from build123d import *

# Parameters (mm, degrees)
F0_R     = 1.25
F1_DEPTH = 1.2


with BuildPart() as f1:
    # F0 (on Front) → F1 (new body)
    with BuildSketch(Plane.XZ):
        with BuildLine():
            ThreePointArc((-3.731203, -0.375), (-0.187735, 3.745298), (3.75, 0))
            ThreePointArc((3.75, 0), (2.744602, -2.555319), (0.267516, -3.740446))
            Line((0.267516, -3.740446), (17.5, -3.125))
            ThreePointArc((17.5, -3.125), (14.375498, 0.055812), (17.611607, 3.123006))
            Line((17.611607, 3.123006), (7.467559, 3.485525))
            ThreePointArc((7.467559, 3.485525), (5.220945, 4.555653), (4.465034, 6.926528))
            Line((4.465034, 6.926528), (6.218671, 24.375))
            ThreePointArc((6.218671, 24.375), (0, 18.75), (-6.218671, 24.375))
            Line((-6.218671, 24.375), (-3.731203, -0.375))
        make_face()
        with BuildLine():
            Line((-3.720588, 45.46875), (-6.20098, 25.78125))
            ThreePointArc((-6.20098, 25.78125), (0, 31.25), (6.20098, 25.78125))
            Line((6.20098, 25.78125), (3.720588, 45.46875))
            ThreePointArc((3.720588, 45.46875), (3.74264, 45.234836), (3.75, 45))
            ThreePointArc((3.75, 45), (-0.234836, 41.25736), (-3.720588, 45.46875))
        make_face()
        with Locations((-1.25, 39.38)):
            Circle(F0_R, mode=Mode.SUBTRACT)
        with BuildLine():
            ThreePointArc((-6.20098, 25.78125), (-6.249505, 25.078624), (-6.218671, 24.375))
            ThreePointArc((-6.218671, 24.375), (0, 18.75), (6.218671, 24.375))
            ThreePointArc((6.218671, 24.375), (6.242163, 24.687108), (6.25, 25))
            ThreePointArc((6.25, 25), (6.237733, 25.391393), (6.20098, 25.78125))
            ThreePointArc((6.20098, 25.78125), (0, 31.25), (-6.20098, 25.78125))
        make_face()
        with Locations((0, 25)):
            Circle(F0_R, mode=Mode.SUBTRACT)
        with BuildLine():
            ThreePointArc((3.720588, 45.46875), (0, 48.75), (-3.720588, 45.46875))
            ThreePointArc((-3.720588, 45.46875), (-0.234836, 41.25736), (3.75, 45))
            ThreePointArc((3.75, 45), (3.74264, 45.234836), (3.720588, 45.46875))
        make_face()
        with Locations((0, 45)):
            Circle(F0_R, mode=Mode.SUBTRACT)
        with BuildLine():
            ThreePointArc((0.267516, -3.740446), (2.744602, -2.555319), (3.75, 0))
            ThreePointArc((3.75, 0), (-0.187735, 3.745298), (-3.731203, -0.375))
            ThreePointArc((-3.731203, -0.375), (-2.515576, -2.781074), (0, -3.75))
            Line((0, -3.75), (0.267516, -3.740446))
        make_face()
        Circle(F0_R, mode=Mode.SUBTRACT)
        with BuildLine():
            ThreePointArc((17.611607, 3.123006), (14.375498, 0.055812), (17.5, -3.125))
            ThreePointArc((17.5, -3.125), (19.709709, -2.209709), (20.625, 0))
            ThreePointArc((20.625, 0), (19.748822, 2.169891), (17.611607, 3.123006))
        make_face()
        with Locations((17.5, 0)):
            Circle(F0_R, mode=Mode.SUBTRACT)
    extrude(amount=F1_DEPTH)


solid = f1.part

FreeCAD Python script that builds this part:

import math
import FreeCAD as App
import Part
import Sketcher
Q = App.Units.Quantity

doc = App.newDocument("Part")
params = doc.addObject("Spreadsheet::Sheet", "Params")
for row, (alias, value) in enumerate([
    ("sketch1_diameter", "2.5 mm"),
    ("sketch1_diameter2", "2.5 mm"),
    ("sketch1_diameter3", "2.5 mm"),
    ("sketch1_diameter4", "2.5 mm"),
    ("sketch1_diameter5", "2.5 mm"),
    ("pad1_length", "1.2 mm"),
], start=1):
    params.set(f"A{row}", alias)
    params.set(f"B{row}", "=" + value)
    params.setAlias(f"B{row}", alias)

body = doc.addObject("PartDesign::Body", "Body")

sketch1 = body.newObject("Sketcher::SketchObject", "Sketch")
sketch1.AttachmentSupport = (doc.getObject("XZ_Plane"), [""])
sketch1.MapMode = "FlatFace"
sketch1.addGeometry(Part.LineSegment(App.Vector(-6.218671, 24.375, 0), App.Vector(-3.731203, -0.375, 0)), False)
sketch1.addGeometry(Part.ArcOfCircle(Part.Circle(App.Vector(0.000002, 0.000002, 0), App.Vector(0, 0, 1), 3.750002), math.radians(-174.260801), math.radians(-90.000027)), False)
sketch1.addGeometry(Part.LineSegment(App.Vector(0, -3.75, 0), App.Vector(0.267516, -3.740446, 0)), False)
sketch1.addGeometry(Part.LineSegment(App.Vector(0.267516, -3.740446, 0), App.Vector(17.5, -3.125, 0)), False)
sketch1.addGeometry(Part.ArcOfCircle(Part.Circle(App.Vector(17.500001, -0.000001, 0), App.Vector(0, 0, 1), 3.124999), math.radians(-90.000019), math.radians(0.000019)), False)
sketch1.addGeometry(Part.ArcOfCircle(Part.Circle(App.Vector(17.500002, 0.000001, 0), App.Vector(0, 0, 1), 3.124998), math.radians(-0.000022), math.radians(87.953319)), False)
sketch1.addGeometry(Part.LineSegment(App.Vector(17.611607, 3.123006, 0), App.Vector(7.467559, 3.485525, 0)), False)
sketch1.addGeometry(Part.ArcOfCircle(Part.Circle(App.Vector(7.579345, 6.613528, 0), App.Vector(0, 0, 1), 3.13), math.radians(174.260837), math.radians(267.953283)), False)
sketch1.addGeometry(Part.LineSegment(App.Vector(4.465034, 6.926528, 0), App.Vector(6.218671, 24.375, 0)), False)
sketch1.addGeometry(Part.ArcOfCircle(Part.Circle(App.Vector(0.000212, 24.999994, 0), App.Vector(0, 0, 1), 6.249788), math.radians(-5.739312), math.radians(0.000053)), False)
sketch1.addGeometry(Part.ArcOfCircle(Part.Circle(App.Vector(-0.000033, 25.000001, 0), App.Vector(0, 0, 1), 6.250033), math.radians(-0.000008), math.radians(7.18071)), False)
sketch1.addGeometry(Part.LineSegment(App.Vector(6.20098, 25.78125, 0), App.Vector(3.720588, 45.46875, 0)), False)
sketch1.addGeometry(Part.ArcOfCircle(Part.Circle(App.Vector(0, 45, 0), App.Vector(0, 0, 1), 3.75), math.radians(7.180759), math.radians(172.819241)), False)
sketch1.addGeometry(Part.LineSegment(App.Vector(-3.720588, 45.46875, 0), App.Vector(-6.20098, 25.78125, 0)), False)
sketch1.addGeometry(Part.ArcOfCircle(Part.Circle(App.Vector(0.00006, 25.000003, 0), App.Vector(0, 0, 1), 6.25006), math.radians(172.819341), math.radians(185.739143)), False)
sketch1.addGeometry(Part.Circle(App.Vector(0, 0, 0), App.Vector(0, 0, 1), 1.25), False)
sketch1.addGeometry(Part.Circle(App.Vector(17.5, 0, 0), App.Vector(0, 0, 1), 1.25), False)
sketch1.addGeometry(Part.Circle(App.Vector(0, 25, 0), App.Vector(0, 0, 1), 1.25), False)
sketch1.addGeometry(Part.Circle(App.Vector(-1.25, 39.38, 0), App.Vector(0, 0, 1), 1.25), False)
sketch1.addGeometry(Part.Circle(App.Vector(0, 45, 0), App.Vector(0, 0, 1), 1.25), False)
sketch1.addConstraint(Sketcher.Constraint("Coincident", 0, 2, 1, 1))
sketch1.addConstraint(Sketcher.Constraint("Coincident", 1, 2, 2, 1))
sketch1.addConstraint(Sketcher.Constraint("Coincident", 2, 2, 3, 1))
sketch1.addConstraint(Sketcher.Constraint("Coincident", 3, 2, 4, 1))
sketch1.addConstraint(Sketcher.Constraint("Coincident", 4, 2, 5, 1))
sketch1.addConstraint(Sketcher.Constraint("Coincident", 5, 2, 6, 1))
sketch1.addConstraint(Sketcher.Constraint("Coincident", 6, 2, 7, 2))
sketch1.addConstraint(Sketcher.Constraint("Coincident", 7, 1, 8, 1))
sketch1.addConstraint(Sketcher.Constraint("Coincident", 8, 2, 9, 1))
sketch1.addConstraint(Sketcher.Constraint("Coincident", 9, 2, 10, 1))
sketch1.addConstraint(Sketcher.Constraint("Coincident", 10, 2, 11, 1))
sketch1.addConstraint(Sketcher.Constraint("Coincident", 11, 2, 12, 1))
sketch1.addConstraint(Sketcher.Constraint("Coincident", 12, 2, 13, 1))
sketch1.addConstraint(Sketcher.Constraint("Coincident", 13, 2, 14, 1))
sketch1.addConstraint(Sketcher.Constraint("Coincident", 14, 2, 0, 1))
sketch1.addConstraint(Sketcher.Constraint("Coincident", 1, 3, -1, 1))
sketch1.addConstraint(Sketcher.Constraint("Coincident", 15, 3, -1, 1))
sketch1.addConstraint(Sketcher.Constraint("Coincident", 5, 3, 4, 3))
sketch1.addConstraint(Sketcher.Constraint("Coincident", 16, 3, 4, 3))
sketch1.addConstraint(Sketcher.Constraint("Coincident", 19, 3, 12, 3))
sketch1.addConstraint(Sketcher.Constraint("PointOnObject", 4, 3, -1))
sketch1.addConstraint(Sketcher.Constraint("PointOnObject", 12, 3, -2))
sketch1.addConstraint(Sketcher.Constraint("PointOnObject", 17, 3, -2))
sketch1.addConstraint(Sketcher.Constraint("PointOnObject", 1, 2, -2))
sketch1.addConstraint(Sketcher.Constraint("PointOnObject", 4, 2, -1))
sketch1.addConstraint(Sketcher.Constraint("Diameter", 15, Q("2.5 mm")))
sketch1.addConstraint(Sketcher.Constraint("Diameter", 16, Q("2.5 mm")))
sketch1.addConstraint(Sketcher.Constraint("Diameter", 17, Q("2.5 mm")))
sketch1.addConstraint(Sketcher.Constraint("Diameter", 18, Q("2.5 mm")))
sketch1.addConstraint(Sketcher.Constraint("Diameter", 19, Q("2.5 mm")))
sketch1.addConstraint(Sketcher.Constraint("Radius", 7, Q("3.13 mm")))
sketch1.addConstraint(Sketcher.Constraint("Radius", 12, Q("3.75 mm")))
sketch1.addConstraint(Sketcher.Constraint("DistanceY", -1, 1, 10, 3, Q("25.000001 mm")))
sketch1.addConstraint(Sketcher.Constraint("DistanceY", -1, 1, 12, 3, Q("45 mm")))
sketch1.addConstraint(Sketcher.Constraint("DistanceY", -1, 1, 17, 3, Q("25 mm")))
sketch1.addConstraint(Sketcher.Constraint("DistanceY", -1, 1, 9, 2, Q("25 mm")))
sketch1.addConstraint(Sketcher.Constraint("Radius", 4, Q("3.124999 mm")))
sketch1.addConstraint(Sketcher.Constraint("DistanceY", 1, 3, 14, 3, Q("25.000001 mm")))
sketch1.addConstraint(Sketcher.Constraint("DistanceX", -1, 1, 4, 3, Q("17.500001 mm")))
sketch1.addConstraint(Sketcher.Constraint("DistanceX", -1, 1, 3, 2, Q("17.5 mm")))
sketch1.addConstraint(Sketcher.Constraint("DistanceX", 18, 3, -1, 1, Q("1.25 mm")))
sketch1.addConstraint(Sketcher.Constraint("DistanceY", -1, 1, 18, 3, Q("39.38 mm")))
sketch1.addConstraint(Sketcher.Constraint("DistanceY", 1, 2, -1, 1, Q("3.75 mm")))
sketch1.addConstraint(Sketcher.Constraint("DistanceX", -1, 1, 9, 2, Q("6.25 mm")))
sketch1.addConstraint(Sketcher.Constraint("Radius", 9, Q("6.249788 mm")))
sketch1.addConstraint(Sketcher.Constraint("Radius", 14, Q("6.25006 mm")))
sketch1.addConstraint(Sketcher.Constraint("DistanceY", 0, 2, -1, 1, Q("0.375 mm")))
sketch1.addConstraint(Sketcher.Constraint("DistanceY", -1, 1, 8, 2, Q("24.375 mm")))
sketch1.addConstraint(Sketcher.Constraint("DistanceY", -1, 1, 14, 2, Q("24.375 mm")))
sketch1.addConstraint(Sketcher.Constraint("Radius", 10, Q("6.250033 mm")))
sketch1.addConstraint(Sketcher.Constraint("DistanceY", 7, 3, 7, 1, Q("0.313 mm")))
sketch1.addConstraint(Sketcher.Constraint("DistanceY", 10, 2, 11, 2, Q("19.6875 mm")))
sketch1.addConstraint(Sketcher.Constraint("Distance", 3, Q("17.243471 mm")))
sketch1.addConstraint(Sketcher.Constraint("DistanceY", -1, 1, 7, 3, Q("6.613528 mm")))
sketch1.addConstraint(Sketcher.Constraint("DistanceX", -1, 1, 6, 2, Q("7.467559 mm")))
sketch1.addConstraint(Sketcher.Constraint("DistanceX", -1, 1, 8, 2, Q("6.218671 mm")))
sketch1.addConstraint(Sketcher.Constraint("DistanceX", -1, 1, 10, 2, Q("6.20098 mm")))
sketch1.addConstraint(Sketcher.Constraint("DistanceY", -1, 1, 12, 2, Q("45.46875 mm")))
sketch1.addConstraint(Sketcher.Constraint("DistanceX", 13, 2, -1, 1, Q("6.20098 mm")))
sketch1.addConstraint(Sketcher.Constraint("DistanceY", -1, 1, 13, 2, Q("25.78125 mm")))
sketch1.addConstraint(Sketcher.Constraint("DistanceY", 2, 2, 1, 3, Q("3.740448 mm")))
sketch1.addConstraint(Sketcher.Constraint("DistanceX", 2, 2, 7, 3, Q("7.311829 mm")))
sketch1.addConstraint(Sketcher.Constraint("DistanceX", 6, 2, 5, 2, Q("10.144048 mm")))
sketch1.setExpression("Constraints[25]", "Params.sketch1_diameter")
sketch1.setExpression("Constraints[26]", "Params.sketch1_diameter2")
sketch1.setExpression("Constraints[27]", "Params.sketch1_diameter3")
sketch1.setExpression("Constraints[28]", "Params.sketch1_diameter4")
sketch1.setExpression("Constraints[29]", "Params.sketch1_diameter5")
pad1 = body.newObject("PartDesign::Pad", "Pad")
pad1.Profile = sketch1
pad1.setExpression("Length", "Params.pad1_length")

doc.recompute()
